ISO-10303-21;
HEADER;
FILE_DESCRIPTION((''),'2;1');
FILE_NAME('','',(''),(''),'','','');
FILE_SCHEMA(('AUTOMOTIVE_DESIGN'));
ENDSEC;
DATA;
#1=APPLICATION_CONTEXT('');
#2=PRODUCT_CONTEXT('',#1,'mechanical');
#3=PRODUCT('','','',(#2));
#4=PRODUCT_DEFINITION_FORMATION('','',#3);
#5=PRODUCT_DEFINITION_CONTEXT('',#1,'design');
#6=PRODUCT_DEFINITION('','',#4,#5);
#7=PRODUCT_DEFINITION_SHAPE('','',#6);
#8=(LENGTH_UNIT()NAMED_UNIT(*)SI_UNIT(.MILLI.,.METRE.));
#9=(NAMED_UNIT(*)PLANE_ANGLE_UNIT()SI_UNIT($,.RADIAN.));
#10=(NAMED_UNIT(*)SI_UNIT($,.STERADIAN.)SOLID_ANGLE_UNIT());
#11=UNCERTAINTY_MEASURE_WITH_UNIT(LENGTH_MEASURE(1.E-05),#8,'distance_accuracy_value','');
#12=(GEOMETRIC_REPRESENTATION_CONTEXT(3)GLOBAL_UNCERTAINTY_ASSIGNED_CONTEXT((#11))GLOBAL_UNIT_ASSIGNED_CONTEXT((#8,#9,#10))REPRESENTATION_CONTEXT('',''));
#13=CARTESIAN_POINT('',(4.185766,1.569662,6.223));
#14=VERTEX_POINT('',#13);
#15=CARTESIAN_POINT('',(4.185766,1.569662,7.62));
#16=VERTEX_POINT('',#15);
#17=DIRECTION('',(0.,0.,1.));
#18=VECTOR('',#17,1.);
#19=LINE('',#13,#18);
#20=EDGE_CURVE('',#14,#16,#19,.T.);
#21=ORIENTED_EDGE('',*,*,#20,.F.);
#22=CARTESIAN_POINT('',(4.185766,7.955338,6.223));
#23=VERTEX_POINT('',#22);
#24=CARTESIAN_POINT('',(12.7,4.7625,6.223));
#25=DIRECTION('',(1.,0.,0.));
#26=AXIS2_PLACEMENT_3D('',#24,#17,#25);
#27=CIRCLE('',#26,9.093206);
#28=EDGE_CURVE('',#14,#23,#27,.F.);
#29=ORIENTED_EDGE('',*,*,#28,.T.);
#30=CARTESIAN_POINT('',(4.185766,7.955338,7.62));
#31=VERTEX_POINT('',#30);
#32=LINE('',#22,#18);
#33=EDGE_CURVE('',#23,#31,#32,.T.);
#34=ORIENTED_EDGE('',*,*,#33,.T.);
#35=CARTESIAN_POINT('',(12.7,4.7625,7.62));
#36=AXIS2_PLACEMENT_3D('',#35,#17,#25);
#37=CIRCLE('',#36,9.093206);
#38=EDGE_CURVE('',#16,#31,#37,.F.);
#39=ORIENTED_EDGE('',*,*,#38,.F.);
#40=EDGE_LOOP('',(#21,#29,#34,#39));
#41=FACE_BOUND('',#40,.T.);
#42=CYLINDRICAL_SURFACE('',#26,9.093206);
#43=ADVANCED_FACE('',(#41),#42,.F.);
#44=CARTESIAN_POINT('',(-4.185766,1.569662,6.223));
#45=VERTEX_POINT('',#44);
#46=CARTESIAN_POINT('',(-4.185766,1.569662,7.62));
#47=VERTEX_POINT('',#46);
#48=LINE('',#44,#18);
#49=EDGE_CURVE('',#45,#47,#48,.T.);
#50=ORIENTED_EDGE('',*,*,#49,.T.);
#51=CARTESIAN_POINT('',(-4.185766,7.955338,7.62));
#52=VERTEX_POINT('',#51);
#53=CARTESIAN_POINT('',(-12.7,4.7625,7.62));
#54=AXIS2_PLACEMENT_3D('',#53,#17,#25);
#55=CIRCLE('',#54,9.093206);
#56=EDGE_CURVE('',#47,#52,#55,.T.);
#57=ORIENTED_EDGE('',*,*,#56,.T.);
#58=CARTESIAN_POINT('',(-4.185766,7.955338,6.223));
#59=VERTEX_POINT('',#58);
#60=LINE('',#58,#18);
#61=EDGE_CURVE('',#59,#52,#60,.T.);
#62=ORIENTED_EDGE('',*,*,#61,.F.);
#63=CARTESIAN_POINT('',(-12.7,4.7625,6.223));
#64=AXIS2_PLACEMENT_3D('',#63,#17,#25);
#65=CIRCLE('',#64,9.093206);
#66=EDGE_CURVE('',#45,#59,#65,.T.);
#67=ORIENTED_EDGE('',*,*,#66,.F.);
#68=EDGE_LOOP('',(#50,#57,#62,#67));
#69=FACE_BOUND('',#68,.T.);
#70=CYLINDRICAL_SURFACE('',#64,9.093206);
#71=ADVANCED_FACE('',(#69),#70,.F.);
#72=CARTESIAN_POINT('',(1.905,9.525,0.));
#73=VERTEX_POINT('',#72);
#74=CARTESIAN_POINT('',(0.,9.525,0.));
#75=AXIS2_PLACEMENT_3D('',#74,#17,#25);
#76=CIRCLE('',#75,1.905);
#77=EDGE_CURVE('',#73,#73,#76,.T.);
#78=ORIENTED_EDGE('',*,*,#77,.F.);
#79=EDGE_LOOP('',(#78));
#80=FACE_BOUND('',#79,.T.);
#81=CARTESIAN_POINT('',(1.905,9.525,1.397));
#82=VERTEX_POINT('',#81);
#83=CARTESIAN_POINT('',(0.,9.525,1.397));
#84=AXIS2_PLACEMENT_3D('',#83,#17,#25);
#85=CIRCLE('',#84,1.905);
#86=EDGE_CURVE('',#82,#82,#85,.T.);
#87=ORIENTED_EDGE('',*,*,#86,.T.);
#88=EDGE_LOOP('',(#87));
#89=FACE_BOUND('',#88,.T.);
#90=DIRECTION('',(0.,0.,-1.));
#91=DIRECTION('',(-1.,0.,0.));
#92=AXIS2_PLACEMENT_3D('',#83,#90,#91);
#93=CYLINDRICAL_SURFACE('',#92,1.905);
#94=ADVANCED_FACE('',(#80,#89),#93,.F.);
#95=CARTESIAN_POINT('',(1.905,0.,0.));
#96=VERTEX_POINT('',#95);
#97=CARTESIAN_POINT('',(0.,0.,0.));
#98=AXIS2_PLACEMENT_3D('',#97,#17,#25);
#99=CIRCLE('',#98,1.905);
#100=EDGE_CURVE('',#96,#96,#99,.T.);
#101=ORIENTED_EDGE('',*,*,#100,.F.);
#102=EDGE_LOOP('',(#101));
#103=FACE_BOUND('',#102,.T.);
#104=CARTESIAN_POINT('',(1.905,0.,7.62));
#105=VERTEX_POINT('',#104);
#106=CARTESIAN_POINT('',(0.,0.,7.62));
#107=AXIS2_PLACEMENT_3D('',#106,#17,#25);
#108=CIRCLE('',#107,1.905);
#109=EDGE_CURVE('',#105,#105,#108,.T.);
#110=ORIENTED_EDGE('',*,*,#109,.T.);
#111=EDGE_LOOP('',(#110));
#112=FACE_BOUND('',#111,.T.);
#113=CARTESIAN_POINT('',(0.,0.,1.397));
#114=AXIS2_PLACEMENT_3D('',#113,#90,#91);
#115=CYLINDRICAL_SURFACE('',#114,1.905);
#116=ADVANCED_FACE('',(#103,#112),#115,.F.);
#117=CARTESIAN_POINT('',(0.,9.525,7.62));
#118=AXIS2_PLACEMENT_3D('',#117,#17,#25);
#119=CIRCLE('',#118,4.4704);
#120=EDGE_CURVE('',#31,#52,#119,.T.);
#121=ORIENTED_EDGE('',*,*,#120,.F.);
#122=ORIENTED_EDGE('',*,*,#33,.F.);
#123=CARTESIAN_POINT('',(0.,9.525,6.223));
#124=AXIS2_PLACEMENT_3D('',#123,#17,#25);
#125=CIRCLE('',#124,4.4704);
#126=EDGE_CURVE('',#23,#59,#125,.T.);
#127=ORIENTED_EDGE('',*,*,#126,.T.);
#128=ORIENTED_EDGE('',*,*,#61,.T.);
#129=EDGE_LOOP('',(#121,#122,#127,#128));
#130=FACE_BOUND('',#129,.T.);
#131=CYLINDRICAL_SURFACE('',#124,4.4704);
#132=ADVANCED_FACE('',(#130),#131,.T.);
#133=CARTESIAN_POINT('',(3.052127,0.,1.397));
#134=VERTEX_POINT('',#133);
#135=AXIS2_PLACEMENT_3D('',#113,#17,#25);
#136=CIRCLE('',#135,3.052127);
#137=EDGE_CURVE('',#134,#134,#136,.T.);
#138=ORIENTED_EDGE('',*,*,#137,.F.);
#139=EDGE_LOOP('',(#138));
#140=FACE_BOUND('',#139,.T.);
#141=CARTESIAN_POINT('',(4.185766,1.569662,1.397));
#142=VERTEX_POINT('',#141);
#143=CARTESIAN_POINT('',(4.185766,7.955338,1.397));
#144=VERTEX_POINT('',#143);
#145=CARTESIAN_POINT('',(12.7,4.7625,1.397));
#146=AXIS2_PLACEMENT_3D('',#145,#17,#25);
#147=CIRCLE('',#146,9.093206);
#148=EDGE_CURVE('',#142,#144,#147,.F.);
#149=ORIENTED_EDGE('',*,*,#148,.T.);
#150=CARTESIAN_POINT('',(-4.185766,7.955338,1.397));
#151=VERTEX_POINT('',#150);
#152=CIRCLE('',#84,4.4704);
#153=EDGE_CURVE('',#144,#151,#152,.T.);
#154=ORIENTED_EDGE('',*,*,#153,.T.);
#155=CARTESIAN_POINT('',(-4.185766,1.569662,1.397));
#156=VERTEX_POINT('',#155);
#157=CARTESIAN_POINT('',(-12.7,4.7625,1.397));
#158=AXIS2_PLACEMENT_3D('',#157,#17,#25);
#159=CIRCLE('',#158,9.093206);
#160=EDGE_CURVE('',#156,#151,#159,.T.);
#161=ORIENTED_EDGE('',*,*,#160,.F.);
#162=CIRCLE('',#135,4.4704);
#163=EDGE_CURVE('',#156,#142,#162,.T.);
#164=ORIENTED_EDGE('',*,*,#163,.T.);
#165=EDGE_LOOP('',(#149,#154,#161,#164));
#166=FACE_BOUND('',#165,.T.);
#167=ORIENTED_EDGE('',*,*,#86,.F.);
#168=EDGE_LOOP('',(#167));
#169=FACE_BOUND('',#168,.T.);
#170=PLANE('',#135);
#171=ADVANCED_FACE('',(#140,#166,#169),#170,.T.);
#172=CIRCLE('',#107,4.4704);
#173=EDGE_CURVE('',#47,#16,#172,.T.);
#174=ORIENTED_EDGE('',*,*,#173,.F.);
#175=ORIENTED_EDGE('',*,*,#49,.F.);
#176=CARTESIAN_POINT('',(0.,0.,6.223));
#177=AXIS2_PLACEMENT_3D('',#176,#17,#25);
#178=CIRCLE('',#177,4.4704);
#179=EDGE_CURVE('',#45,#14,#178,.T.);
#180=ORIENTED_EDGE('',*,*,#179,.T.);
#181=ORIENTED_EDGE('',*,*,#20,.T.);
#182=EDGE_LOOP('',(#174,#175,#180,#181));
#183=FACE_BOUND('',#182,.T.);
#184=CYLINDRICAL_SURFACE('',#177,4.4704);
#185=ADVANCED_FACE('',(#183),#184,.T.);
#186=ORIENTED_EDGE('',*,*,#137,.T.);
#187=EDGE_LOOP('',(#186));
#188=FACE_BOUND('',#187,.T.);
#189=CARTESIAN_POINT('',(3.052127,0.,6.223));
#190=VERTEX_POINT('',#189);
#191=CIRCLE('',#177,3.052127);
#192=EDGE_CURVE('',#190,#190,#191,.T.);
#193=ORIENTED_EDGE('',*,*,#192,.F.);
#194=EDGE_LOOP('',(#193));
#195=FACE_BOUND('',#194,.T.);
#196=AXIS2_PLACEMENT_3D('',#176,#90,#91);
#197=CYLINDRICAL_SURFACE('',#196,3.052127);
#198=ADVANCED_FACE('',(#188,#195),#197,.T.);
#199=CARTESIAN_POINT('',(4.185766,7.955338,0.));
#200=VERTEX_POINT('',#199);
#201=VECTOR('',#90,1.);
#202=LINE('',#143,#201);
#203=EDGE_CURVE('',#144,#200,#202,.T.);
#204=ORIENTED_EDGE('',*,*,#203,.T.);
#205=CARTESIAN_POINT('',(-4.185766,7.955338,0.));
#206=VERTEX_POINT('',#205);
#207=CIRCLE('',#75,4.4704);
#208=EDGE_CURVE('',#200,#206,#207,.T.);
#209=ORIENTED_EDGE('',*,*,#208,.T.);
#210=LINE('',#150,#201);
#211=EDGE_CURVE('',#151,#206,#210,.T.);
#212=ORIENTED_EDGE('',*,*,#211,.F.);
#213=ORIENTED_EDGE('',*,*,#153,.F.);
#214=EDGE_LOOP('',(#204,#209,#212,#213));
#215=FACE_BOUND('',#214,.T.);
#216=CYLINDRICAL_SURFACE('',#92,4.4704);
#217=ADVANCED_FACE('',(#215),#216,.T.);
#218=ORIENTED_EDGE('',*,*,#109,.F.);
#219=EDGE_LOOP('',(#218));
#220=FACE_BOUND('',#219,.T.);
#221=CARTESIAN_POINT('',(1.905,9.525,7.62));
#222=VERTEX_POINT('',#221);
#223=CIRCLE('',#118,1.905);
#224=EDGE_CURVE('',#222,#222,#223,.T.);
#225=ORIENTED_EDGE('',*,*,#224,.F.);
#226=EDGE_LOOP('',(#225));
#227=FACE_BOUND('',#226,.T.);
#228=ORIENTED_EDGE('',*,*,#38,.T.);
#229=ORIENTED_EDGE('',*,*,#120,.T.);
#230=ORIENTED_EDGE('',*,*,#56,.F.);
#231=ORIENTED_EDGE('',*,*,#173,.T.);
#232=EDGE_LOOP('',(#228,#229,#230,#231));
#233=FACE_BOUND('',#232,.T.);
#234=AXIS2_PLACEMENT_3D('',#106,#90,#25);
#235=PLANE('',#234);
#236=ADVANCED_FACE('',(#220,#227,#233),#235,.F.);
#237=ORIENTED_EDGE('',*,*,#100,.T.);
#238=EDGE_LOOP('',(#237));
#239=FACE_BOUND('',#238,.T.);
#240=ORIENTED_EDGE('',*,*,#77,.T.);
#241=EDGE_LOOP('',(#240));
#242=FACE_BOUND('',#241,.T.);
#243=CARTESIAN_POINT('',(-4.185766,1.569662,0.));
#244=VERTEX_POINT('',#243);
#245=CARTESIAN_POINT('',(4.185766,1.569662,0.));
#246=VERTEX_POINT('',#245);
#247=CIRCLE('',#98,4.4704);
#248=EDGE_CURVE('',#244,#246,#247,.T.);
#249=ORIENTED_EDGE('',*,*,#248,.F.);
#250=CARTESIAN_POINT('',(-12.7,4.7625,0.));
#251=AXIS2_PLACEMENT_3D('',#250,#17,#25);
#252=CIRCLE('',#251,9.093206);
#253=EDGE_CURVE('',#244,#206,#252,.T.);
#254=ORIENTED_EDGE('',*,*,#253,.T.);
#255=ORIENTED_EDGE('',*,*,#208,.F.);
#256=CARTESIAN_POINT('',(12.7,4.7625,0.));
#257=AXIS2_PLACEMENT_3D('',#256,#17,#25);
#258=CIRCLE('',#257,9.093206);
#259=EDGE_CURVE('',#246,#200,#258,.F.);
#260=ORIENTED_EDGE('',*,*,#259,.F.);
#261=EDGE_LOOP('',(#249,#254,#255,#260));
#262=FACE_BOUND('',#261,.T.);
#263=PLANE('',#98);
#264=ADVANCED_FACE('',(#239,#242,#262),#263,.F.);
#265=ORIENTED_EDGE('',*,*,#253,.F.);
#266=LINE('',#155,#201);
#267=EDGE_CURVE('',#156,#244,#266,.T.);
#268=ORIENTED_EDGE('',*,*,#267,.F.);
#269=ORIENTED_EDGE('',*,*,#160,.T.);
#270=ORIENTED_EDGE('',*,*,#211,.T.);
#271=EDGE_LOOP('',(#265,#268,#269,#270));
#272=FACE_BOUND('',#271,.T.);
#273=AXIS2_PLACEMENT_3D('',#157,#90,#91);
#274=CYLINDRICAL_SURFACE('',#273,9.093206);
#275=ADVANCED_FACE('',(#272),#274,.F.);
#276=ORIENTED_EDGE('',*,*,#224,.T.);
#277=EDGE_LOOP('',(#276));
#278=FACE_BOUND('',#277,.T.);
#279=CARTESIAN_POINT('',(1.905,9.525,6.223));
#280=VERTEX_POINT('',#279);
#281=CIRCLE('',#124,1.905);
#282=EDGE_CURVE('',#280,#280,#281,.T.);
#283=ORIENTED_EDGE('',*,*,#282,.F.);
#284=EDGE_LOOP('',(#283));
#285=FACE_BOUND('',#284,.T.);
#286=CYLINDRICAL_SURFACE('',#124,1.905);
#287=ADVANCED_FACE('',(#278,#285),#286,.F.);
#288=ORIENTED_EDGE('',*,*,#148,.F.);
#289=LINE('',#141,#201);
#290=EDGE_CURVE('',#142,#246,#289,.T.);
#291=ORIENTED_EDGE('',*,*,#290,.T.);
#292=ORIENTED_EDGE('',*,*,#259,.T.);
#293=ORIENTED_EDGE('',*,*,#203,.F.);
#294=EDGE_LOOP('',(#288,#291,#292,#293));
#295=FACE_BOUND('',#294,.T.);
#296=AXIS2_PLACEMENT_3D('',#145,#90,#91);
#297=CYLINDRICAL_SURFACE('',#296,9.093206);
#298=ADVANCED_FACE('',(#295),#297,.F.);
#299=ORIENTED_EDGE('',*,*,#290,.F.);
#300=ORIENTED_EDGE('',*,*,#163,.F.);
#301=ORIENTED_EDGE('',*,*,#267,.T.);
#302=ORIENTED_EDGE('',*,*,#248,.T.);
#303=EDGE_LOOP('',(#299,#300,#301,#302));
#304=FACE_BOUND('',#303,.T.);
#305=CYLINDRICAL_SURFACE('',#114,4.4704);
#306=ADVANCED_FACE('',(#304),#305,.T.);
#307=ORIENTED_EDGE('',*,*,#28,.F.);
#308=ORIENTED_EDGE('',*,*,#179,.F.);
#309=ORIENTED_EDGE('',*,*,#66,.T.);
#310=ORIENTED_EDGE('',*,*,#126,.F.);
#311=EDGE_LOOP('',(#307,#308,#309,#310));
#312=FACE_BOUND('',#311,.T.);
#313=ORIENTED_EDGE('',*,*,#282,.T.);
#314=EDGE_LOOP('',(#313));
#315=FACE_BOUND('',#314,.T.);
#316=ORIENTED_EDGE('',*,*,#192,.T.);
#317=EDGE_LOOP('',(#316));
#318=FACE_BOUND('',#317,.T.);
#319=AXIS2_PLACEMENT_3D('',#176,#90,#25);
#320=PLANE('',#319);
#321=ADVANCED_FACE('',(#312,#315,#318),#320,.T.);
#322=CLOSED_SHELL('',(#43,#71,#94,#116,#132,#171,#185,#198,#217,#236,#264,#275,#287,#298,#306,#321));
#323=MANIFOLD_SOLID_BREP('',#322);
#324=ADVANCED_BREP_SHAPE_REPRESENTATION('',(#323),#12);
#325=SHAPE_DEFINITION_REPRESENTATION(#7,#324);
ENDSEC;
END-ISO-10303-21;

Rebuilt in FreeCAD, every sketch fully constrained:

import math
import FreeCAD as App
import Part
import Sketcher
from FreeCAD import Vector
Q = App.Units.Quantity

doc = App.newDocument("Part")
body = doc.addObject("PartDesign::Body", "Body")

# Sketch on XY plane
sketch1 = doc.addObject("Sketcher::SketchObject", "Sketch")
body.addObject(sketch1)
sketch1.AttachmentSupport = (doc.XY_Plane, [""])
sketch1.MapMode = "FlatFace"
sketch1.addGeometry(Part.ArcOfCircle(Part.Circle(Vector(12.7, 4.8, 0), Vector(0, 0, 1), 9.1), math.radians(159), math.radians(201)), False)
sketch1.addGeometry(Part.ArcOfCircle(Part.Circle(Vector(0, 9.5, 0), Vector(0, 0, 1), 4.5), math.radians(-21), math.radians(201)), False)
sketch1.addGeometry(Part.ArcOfCircle(Part.Circle(Vector(-12.7, 4.8, 0), Vector(0, 0, 1), 9.1), math.radians(-21), math.radians(21)), False)
sketch1.addGeometry(Part.ArcOfCircle(Part.Circle(Vector(0, 0, 0), Vector(0, 0, 1), 4.5), math.radians(159), math.radians(381)), False)
sketch1.addGeometry(Part.Circle(Vector(0, 0, 0), Vector(0, 0, 1), 1.9), False)
sketch1.addGeometry(Part.Circle(Vector(0, 9.5, 0), Vector(0, 0, 1), 1.9), False)
sketch1.addConstraint(Sketcher.Constraint("Tangent", 0, 1, 1, 1))
sketch1.addConstraint(Sketcher.Constraint("Tangent", 1, 2, 2, 2))
sketch1.addConstraint(Sketcher.Constraint("Tangent", 2, 1, 3, 1))
sketch1.addConstraint(Sketcher.Constraint("Tangent", 3, 2, 0, 2))
sketch1.addConstraint(Sketcher.Constraint("Coincident", 3, 3, -1, 1))
sketch1.addConstraint(Sketcher.Constraint("Coincident", 4, 3, -1, 1))
sketch1.addConstraint(Sketcher.Constraint("Coincident", 5, 3, 1, 3))
sketch1.addConstraint(Sketcher.Constraint("Equal", 0, 2))
sketch1.addConstraint(Sketcher.Constraint("Equal", 1, 3))
sketch1.addConstraint(Sketcher.Constraint("Equal", 4, 5))
sketch1.addConstraint(Sketcher.Constraint("PointOnObject", 1, 3, -2))
sketch1.addConstraint(Sketcher.Constraint("Diameter", 4, Q("0.15 in")))
sketch1.addConstraint(Sketcher.Constraint("Radius", 1, Q("0.176 in")))
sketch1.addConstraint(Sketcher.Constraint("DistanceX", 2, 3, 0, 3, Q("1 in")))
sketch1.addConstraint(Sketcher.Constraint("DistanceY", -1, 1, 0, 3, Q("0.1875 in")))
pad1 = doc.addObject("PartDesign::Pad", "Pad")
body.addObject(pad1)
pad1.Profile = sketch1
pad1.Length = Q("0.055 in")

# Sketch on XY plane
sketch2 = doc.addObject("Sketcher::SketchObject", "Sketch001")
body.addObject(sketch2)
sketch2.AttachmentSupport = (doc.XY_Plane, [""])
sketch2.MapMode = "FlatFace"
sketch2.AttachmentOffset = App.Placement(Vector(0, 0, 0.055 * 25.4), App.Rotation())
sketch2.addGeometry(Part.Circle(Vector(0, 0, 0), Vector(0, 0, 1), 3.1), False)
sketch2.addGeometry(Part.Circle(Vector(0, 0, 0), Vector(0, 0, 1), 1.9), False)
sketch2.addConstraint(Sketcher.Constraint("Coincident", 0, 3, -1, 1))
sketch2.addConstraint(Sketcher.Constraint("Coincident", 1, 3, -1, 1))
sketch2.addConstraint(Sketcher.Constraint("Diameter", 1, Q("0.15 in")))
sketch2.addConstraint(Sketcher.Constraint("Diameter", 0, Q("6.104254 mm")))
pad2 = doc.addObject("PartDesign::Pad", "Pad001")
body.addObject(pad2)
pad2.Profile = sketch2
pad2.Length = Q("0.19 in")
doc.recompute()

datumplane = doc.addObject("PartDesign::Plane", "DatumPlane")
body.addObject(datumplane)
datumplane.AttachmentSupport = (doc.XY_Plane, [""])
datumplane.MapMode = "FlatFace"
datumplane.AttachmentOffset = App.Placement(Vector(0, 0, 0.15 * 25.4), App.Rotation())
mirrored = doc.addObject("PartDesign::Mirrored", "Mirrored")
body.addObject(mirrored)
mirrored.Originals = [pad1]
mirrored.MirrorPlane = (datumplane, [""])
body.Tip = mirrored

doc.recompute()
